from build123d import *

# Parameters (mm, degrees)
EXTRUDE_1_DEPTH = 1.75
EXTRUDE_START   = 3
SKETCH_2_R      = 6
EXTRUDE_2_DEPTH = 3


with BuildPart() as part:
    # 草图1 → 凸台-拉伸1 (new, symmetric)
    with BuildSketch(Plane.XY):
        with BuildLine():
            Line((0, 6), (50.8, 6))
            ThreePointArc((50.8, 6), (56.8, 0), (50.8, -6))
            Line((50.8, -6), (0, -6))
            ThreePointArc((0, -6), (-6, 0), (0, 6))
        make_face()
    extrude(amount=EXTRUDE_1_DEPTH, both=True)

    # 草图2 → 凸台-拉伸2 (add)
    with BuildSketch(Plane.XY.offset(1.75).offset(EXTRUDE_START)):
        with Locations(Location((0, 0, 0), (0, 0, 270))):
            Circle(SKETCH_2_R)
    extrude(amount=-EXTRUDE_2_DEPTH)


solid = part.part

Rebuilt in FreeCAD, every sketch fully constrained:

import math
import FreeCAD as App
import Part
import Sketcher
from FreeCAD import Vector

doc = App.newDocument("Part")
body = doc.addObject("PartDesign::Body", "Body")

sketch1 = body.newObject("Sketcher::SketchObject", "Sketch")
sketch1.AttachmentSupport = (doc.getObject("XY_Plane"), [""])
sketch1.MapMode = "FlatFace"
sketch1.addGeometry([
    Part.LineSegment(Vector(50.8, 6, 0), Vector(0, 6, 0)),
    Part.ArcOfCircle(Part.Circle(Vector(0, 0, 0), Vector(0, 0, 1), 6), math.radians(90), math.radians(270)),
    Part.LineSegment(Vector(0, -6, 0), Vector(50.8, -6, 0)),
    Part.ArcOfCircle(Part.Circle(Vector(50.8, 0, 0), Vector(0, 0, 1), 6), math.radians(-90), math.radians(90)),
], False)
sketch1.addConstraint([
    Sketcher.Constraint("Tangent", 0, 2, 1, 1),
    Sketcher.Constraint("Tangent", 1, 2, 2, 1),
    Sketcher.Constraint("Tangent", 2, 2, 3, 1),
    Sketcher.Constraint("Tangent", 3, 2, 0, 1),
    Sketcher.Constraint("Horizontal", 0),
    Sketcher.Constraint("Horizontal", 2),
    Sketcher.Constraint("Coincident", 1, 3, -1, 1),
    Sketcher.Constraint("Radius", 1, 6.0),
    Sketcher.Constraint("DistanceX", 0, 2, 0, 1, 50.8),
])
pad1 = body.newObject("PartDesign::Pad", "Pad")
pad1.Profile = sketch1
pad1.Length = 3.5
pad1.Midplane = True

sketch2 = body.newObject("Sketcher::SketchObject", "Sketch001")
sketch2.AttachmentSupport = (doc.getObject("XY_Plane"), [""])
sketch2.MapMode = "FlatFace"
sketch2.AttachmentOffset = App.Placement(Vector(0, 0, 4.75), App.Rotation())
sketch2.addGeometry(Part.Circle(Vector(0, 0, 0), Vector(0, 0, 1), 6), False)
sketch2.addConstraint([
    Sketcher.Constraint("Coincident", 0, 3, -1, 1),
    Sketcher.Constraint("Diameter", 0, 12.0),
])
pad2 = body.newObject("PartDesign::Pad", "Pad001")
pad2.Profile = sketch2
pad2.Length = 3
pad2.Reversed = True

doc.recompute()
